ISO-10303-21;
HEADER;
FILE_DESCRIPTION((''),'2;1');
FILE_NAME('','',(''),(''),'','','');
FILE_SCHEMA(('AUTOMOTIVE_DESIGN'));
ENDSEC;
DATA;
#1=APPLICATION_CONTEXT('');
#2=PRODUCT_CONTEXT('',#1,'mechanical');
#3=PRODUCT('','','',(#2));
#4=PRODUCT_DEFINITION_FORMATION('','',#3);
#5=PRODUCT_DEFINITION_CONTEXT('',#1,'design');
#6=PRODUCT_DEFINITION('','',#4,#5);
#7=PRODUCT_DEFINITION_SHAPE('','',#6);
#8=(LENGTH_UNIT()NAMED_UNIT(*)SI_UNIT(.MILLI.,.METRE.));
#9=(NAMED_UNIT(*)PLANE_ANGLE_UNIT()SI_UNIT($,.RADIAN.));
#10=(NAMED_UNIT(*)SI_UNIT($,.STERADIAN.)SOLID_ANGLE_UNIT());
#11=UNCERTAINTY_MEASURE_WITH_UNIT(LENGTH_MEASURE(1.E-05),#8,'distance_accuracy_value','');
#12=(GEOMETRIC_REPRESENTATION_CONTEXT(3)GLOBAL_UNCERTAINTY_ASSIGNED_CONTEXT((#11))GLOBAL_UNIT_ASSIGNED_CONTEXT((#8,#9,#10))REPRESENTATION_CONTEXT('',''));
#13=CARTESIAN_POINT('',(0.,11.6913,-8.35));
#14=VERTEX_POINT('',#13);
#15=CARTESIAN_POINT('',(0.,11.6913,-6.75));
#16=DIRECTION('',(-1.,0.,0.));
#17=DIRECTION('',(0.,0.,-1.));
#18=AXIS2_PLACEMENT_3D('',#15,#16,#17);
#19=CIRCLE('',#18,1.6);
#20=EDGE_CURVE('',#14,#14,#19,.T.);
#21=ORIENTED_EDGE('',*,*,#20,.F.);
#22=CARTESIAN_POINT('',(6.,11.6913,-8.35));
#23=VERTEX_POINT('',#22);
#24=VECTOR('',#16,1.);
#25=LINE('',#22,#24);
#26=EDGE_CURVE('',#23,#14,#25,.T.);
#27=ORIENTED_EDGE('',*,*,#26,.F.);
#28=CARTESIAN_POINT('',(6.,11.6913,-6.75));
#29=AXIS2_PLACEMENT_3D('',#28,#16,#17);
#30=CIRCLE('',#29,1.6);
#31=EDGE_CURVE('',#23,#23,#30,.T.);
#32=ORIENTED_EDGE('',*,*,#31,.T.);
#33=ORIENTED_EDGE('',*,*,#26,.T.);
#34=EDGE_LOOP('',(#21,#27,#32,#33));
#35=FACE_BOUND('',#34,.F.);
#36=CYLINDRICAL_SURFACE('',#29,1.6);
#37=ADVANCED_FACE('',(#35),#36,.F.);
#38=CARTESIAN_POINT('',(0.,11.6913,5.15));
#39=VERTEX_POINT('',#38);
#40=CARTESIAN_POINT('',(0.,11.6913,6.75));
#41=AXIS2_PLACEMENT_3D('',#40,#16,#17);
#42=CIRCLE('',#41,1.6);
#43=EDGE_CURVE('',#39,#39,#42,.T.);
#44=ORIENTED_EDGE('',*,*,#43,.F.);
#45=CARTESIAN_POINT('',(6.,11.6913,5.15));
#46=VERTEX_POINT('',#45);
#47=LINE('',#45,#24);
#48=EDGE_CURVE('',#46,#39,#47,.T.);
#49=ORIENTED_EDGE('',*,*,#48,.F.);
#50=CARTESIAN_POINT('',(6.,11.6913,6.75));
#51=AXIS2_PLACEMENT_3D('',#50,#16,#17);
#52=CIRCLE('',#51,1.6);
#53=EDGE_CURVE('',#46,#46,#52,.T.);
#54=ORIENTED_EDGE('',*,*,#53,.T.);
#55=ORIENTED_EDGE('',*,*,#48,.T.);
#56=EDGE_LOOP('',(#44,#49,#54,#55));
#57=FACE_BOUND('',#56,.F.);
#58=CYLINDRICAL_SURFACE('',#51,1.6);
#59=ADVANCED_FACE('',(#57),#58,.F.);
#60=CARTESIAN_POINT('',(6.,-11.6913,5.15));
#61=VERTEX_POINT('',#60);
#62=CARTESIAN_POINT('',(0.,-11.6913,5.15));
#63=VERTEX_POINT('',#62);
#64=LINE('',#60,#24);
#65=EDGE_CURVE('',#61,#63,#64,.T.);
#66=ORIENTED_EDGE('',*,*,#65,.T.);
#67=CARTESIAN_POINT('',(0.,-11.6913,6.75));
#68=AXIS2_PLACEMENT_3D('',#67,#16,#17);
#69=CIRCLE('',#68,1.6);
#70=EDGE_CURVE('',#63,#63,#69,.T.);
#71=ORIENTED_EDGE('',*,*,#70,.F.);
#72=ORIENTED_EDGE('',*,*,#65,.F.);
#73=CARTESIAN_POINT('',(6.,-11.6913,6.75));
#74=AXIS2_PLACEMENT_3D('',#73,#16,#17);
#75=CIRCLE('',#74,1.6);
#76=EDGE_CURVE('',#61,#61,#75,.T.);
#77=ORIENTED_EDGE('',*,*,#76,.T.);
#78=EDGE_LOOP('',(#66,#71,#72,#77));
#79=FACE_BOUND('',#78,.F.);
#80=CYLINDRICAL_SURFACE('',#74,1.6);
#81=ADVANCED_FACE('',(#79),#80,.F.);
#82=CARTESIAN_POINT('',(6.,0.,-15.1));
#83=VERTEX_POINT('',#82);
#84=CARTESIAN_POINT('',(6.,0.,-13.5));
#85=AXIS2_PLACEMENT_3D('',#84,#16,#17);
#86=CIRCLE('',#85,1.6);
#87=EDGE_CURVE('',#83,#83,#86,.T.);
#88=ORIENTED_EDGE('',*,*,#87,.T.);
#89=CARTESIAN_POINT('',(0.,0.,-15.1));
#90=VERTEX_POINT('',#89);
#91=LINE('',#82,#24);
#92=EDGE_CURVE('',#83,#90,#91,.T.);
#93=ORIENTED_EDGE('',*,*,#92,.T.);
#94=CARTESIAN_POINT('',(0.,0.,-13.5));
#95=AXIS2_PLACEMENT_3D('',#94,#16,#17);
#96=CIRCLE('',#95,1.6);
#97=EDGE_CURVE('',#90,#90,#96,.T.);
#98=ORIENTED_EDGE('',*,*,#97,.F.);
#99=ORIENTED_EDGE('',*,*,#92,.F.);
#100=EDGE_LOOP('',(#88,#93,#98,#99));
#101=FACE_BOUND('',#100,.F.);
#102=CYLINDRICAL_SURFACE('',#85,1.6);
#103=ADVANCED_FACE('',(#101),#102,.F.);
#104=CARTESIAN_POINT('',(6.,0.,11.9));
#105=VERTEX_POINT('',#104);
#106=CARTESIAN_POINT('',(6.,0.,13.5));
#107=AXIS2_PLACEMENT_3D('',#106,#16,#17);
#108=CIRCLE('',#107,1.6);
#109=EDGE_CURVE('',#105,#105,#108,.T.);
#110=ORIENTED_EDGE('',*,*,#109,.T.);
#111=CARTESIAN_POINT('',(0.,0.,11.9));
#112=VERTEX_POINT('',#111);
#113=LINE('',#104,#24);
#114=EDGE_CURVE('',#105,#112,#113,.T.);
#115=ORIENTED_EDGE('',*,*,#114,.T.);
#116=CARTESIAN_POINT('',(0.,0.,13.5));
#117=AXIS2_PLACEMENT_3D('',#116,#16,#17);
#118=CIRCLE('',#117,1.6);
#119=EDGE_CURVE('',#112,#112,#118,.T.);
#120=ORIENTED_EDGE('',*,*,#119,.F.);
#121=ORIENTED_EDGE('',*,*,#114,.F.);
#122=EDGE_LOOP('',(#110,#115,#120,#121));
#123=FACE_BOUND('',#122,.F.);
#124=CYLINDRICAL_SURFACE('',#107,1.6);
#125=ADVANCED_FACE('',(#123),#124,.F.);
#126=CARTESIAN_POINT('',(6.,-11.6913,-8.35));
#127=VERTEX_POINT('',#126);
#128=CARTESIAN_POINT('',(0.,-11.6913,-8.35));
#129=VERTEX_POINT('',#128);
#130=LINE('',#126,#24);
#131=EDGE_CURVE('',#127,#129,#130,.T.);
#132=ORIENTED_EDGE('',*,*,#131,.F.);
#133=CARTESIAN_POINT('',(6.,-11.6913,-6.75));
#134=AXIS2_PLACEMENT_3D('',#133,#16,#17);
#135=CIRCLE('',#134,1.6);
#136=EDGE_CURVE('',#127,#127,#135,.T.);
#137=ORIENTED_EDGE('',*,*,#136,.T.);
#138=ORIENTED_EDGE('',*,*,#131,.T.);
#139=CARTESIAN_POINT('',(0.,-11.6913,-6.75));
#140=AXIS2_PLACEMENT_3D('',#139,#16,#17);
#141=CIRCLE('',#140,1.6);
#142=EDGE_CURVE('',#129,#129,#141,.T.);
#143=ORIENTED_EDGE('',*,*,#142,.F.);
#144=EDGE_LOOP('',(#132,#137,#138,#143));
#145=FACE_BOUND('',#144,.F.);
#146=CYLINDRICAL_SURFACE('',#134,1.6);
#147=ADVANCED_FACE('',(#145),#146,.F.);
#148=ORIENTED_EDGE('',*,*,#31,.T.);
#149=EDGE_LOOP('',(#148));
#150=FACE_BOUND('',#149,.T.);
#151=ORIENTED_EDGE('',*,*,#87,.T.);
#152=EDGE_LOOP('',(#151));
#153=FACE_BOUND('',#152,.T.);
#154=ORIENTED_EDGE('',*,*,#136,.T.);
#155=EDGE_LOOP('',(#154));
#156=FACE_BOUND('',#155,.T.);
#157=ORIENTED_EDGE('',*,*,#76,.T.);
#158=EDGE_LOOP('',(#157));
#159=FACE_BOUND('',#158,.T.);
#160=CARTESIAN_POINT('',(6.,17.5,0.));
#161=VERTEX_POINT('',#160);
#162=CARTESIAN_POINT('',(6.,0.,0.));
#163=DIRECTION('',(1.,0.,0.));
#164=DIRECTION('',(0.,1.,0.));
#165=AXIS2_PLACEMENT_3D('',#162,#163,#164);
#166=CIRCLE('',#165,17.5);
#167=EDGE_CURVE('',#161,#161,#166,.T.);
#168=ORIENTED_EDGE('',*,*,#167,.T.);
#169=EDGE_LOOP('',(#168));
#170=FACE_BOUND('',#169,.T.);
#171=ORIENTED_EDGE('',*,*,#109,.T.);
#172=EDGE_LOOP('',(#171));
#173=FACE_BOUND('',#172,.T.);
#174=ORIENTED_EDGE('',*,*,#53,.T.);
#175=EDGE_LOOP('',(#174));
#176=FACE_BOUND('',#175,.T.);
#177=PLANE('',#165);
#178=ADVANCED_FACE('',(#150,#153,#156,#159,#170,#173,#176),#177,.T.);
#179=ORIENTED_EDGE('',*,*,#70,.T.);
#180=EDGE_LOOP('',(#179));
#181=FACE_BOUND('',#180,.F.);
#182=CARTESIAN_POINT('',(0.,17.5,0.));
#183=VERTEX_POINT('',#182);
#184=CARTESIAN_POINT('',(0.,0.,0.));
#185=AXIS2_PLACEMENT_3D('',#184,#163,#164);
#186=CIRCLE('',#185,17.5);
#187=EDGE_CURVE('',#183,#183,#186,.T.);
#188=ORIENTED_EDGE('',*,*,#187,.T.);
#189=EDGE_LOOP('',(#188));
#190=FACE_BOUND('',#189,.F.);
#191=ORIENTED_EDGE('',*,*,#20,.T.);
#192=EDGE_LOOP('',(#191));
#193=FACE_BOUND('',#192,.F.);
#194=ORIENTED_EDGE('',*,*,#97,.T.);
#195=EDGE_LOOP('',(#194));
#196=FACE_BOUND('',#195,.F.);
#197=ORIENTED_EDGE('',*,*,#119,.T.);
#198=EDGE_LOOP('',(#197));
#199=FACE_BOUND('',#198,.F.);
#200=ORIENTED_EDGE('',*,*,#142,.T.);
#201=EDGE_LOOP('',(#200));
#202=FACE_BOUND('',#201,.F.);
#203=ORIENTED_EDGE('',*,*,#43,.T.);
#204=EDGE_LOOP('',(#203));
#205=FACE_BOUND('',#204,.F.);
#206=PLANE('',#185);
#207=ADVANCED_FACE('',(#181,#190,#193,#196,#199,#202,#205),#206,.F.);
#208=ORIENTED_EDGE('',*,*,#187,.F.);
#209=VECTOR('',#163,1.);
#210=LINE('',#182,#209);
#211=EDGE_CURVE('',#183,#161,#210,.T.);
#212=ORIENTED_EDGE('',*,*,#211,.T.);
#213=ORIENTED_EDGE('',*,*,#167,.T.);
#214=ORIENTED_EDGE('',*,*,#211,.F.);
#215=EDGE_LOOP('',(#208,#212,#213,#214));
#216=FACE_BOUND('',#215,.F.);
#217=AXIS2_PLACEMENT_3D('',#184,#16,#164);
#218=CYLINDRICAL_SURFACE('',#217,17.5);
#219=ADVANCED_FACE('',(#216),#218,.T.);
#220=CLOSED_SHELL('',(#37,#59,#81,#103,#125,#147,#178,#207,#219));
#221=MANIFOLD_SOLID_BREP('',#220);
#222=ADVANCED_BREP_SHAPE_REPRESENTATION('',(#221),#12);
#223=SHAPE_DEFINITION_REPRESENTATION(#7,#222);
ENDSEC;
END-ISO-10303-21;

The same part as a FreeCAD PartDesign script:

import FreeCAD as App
import Part
import Sketcher
Q = App.Units.Quantity

doc = App.newDocument("Part")
body = doc.addObject("PartDesign::Body", "Body")

sketch1 = body.newObject("Sketcher::SketchObject", "Sketch")
sketch1.AttachmentSupport = (doc.getObject("YZ_Plane"), [""])
sketch1.MapMode = "FlatFace"
sketch1.addGeometry(Part.Circle(App.Vector(0, 0, 0), App.Vector(0, 0, 1), 17.5), False)
sketch1.addConstraint([
    Sketcher.Constraint("Coincident", 0, 3, -1, 1),
    Sketcher.Constraint("Diameter", 0, Q("35 mm")),
])
pad1 = body.newObject("PartDesign::Pad", "Pad")
pad1.Profile = sketch1
pad1.Length = 6

sketch2 = body.newObject("Sketcher::SketchObject", "Sketch001")
sketch2.AttachmentSupport = (doc.getObject("YZ_Plane"), [""])
sketch2.MapMode = "FlatFace"
sketch2.AttachmentOffset = App.Placement(App.Vector(0, 0, 6), App.Rotation())
sketch2.addGeometry([
    Part.Circle(App.Vector(0, -13.5, 0), App.Vector(0, 0, 1), 1.6),
    Part.Circle(App.Vector(11.6913, -6.75, 0), App.Vector(0, 0, 1), 1.6),
    Part.Circle(App.Vector(11.6913, 6.75, 0), App.Vector(0, 0, 1), 1.6),
    Part.Circle(App.Vector(0, 13.5, 0), App.Vector(0, 0, 1), 1.6),
    Part.Circle(App.Vector(-11.6913, 6.75, 0), App.Vector(0, 0, 1), 1.6),
    Part.Circle(App.Vector(-11.6913, -6.75, 0), App.Vector(0, 0, 1), 1.6),
], False)
sketch2.addConstraint([
    Sketcher.Constraint("Equal", 0, 1),
    Sketcher.Constraint("Equal", 1, 2),
    Sketcher.Constraint("Equal", 2, 3),
    Sketcher.Constraint("Equal", 3, 4),
    Sketcher.Constraint("Equal", 4, 5),
    Sketcher.Constraint("Symmetric", 0, 3, 3, 3, -1, 1),
    Sketcher.Constraint("Symmetric", 1, 3, 4, 3, -1, 1),
    Sketcher.Constraint("Symmetric", 2, 3, 5, 3, -1, 1),
    Sketcher.Constraint("Symmetric", 2, 3, 4, 3, -2),
    Sketcher.Constraint("PointOnObject", 0, 3, -2),
    Sketcher.Constraint("Diameter", 0, Q("3.2 mm")),
    Sketcher.Constraint("DistanceY", 0, 3, 3, 3, Q("27 mm")),
    Sketcher.Constraint("DistanceY", 1, 3, 2, 3, Q("13.5 mm")),
    Sketcher.Constraint("DistanceX", -1, 1, 1, 3, Q("11.6913 mm")),
])
doc.recompute()
hole = body.newObject("PartDesign::Hole", "Hole")
hole.Profile = sketch2
hole.ThreadType = "None"
hole.Diameter = 3.2
hole.DepthType = "ThroughAll"

doc.recompute()
